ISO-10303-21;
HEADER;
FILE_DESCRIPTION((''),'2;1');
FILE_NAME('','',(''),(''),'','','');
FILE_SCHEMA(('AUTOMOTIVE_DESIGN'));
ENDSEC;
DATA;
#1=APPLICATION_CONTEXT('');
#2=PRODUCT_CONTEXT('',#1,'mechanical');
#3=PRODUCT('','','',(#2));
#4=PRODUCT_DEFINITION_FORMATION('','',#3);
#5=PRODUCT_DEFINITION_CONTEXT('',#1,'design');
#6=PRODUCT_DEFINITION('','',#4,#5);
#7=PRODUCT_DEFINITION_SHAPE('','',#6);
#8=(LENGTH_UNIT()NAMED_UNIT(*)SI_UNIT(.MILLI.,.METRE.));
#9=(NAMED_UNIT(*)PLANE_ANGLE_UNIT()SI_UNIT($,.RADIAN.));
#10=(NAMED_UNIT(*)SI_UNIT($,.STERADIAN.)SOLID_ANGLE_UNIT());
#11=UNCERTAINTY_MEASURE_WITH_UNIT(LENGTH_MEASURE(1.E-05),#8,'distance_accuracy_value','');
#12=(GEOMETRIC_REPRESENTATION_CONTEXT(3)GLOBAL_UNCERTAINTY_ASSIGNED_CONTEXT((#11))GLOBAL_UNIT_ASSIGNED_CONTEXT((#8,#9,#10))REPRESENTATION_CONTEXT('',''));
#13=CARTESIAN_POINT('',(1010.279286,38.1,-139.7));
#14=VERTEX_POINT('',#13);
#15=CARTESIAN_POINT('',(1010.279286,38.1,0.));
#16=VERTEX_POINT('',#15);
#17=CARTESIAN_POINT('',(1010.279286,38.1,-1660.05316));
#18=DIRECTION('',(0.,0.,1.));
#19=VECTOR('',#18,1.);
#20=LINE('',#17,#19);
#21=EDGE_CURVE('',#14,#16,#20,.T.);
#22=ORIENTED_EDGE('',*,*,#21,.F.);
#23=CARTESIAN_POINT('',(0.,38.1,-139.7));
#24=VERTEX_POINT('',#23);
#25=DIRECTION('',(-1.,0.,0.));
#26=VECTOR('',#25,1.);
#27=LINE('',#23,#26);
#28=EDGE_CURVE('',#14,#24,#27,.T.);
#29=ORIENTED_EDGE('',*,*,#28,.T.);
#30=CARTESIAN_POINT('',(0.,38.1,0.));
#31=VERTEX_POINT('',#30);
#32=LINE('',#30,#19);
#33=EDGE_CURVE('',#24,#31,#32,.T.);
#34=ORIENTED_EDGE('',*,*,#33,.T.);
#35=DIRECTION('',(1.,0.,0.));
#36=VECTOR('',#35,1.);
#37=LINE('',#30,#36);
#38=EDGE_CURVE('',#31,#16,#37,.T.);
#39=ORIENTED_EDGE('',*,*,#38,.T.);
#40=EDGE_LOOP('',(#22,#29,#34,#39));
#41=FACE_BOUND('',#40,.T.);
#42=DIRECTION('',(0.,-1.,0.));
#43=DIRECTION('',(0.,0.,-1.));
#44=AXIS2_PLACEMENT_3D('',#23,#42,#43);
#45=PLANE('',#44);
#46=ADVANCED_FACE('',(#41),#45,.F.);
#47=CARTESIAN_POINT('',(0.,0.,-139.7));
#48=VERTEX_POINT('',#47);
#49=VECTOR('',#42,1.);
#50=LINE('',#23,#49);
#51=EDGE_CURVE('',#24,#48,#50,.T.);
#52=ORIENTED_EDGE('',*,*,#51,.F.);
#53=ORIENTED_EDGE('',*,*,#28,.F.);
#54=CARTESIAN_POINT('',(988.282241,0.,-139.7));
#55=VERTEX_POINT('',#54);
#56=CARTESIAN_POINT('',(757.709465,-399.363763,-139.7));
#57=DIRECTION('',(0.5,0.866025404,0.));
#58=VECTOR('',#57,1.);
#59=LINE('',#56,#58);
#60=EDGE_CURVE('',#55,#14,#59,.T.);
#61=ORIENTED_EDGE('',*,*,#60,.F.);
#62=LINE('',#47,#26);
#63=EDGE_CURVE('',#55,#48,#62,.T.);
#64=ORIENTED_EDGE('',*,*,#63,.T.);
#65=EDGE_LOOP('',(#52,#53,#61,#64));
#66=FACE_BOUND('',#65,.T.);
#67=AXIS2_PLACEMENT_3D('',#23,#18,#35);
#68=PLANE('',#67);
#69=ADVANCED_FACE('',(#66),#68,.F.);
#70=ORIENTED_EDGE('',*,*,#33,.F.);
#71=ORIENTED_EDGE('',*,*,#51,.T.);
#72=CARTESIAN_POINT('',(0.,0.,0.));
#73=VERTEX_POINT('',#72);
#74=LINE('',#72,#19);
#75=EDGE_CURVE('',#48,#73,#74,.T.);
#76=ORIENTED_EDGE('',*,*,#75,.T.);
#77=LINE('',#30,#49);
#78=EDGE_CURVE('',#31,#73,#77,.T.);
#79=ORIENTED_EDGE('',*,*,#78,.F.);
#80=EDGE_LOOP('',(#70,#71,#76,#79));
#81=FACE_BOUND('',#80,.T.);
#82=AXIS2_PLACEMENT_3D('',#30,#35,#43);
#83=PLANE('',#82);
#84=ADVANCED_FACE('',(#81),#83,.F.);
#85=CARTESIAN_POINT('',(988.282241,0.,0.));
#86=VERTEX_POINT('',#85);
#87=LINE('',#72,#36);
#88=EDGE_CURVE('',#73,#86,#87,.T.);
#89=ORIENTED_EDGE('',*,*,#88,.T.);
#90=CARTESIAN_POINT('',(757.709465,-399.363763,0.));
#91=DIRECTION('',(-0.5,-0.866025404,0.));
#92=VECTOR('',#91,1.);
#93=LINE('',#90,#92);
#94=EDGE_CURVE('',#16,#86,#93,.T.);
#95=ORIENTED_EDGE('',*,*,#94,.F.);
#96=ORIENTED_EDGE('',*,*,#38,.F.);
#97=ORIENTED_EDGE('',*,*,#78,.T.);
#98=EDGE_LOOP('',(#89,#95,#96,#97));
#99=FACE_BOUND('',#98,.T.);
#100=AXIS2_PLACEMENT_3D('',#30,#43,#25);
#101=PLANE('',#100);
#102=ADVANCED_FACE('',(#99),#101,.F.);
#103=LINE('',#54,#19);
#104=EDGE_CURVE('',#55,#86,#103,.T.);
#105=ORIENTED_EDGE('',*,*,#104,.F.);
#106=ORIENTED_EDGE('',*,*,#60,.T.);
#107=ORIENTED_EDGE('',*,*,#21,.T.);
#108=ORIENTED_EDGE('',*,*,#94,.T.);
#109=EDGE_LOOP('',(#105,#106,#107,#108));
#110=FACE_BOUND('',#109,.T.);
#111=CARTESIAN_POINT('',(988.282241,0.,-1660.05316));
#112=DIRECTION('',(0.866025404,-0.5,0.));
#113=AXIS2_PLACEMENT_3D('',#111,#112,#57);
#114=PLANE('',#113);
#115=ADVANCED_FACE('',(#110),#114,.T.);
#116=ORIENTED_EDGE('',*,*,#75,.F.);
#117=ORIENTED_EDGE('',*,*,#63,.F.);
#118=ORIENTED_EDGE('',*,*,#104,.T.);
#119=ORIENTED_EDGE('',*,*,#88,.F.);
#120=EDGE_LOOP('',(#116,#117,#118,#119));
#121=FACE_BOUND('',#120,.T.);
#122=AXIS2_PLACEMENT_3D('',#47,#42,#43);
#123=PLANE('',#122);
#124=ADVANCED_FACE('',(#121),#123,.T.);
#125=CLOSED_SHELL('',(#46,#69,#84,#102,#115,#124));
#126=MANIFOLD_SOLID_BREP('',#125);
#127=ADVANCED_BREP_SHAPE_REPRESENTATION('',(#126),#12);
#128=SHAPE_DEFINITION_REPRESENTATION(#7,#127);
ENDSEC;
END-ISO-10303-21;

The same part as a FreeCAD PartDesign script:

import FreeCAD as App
import Part
import Sketcher
Q = App.Units.Quantity


def add_polygon(sketch, points):
    """Adds a closed chain of lines whose ends are joined by coincident constraints."""
    first, n = sketch.GeometryCount, len(points)
    for a, b in zip(points, points[1:] + points[:1]):
        sketch.addGeometry(Part.LineSegment(App.Vector(*a, 0), App.Vector(*b, 0)), False)
    for i in range(n):
        sketch.addConstraint(Sketcher.Constraint("Coincident", first + i, 2, first + (i + 1) % n, 1))

doc = App.newDocument("Part")
body = doc.addObject("PartDesign::Body", "Body")

sketch1 = body.newObject("Sketcher::SketchObject", "Sketch")
sketch1.AttachmentSupport = (doc.getObject("XZ_Plane"), [""])
sketch1.MapMode = "FlatFace"
add_polygon(sketch1, [(0, -140), (0, 0), (1067, 0), (1067, -140)])
sketch1.addConstraint([
    Sketcher.Constraint("Vertical", 0),
    Sketcher.Constraint("Horizontal", 1),
    Sketcher.Constraint("Vertical", 2),
    Sketcher.Constraint("Horizontal", 3),
    Sketcher.Constraint("Coincident", 0, 2, -1, 1),
    Sketcher.Constraint("DistanceX", 1, 1, 1, 2, Q("42 in")),
    Sketcher.Constraint("DistanceY", 0, 1, 0, 2, Q("5.5 in")),
])
pad1 = body.newObject("PartDesign::Pad", "Pad")
pad1.Profile = sketch1
pad1.Length = Q("1.5 in")
pad1.Reversed = True

sketch2 = body.newObject("Sketcher::SketchObject", "Sketch001")
sketch2.AttachmentSupport = (doc.getObject("XY_Plane"), [""])
sketch2.MapMode = "FlatFace"
sketch2.AttachmentOffset = App.Placement(App.Vector(0, 0, -5.5 * 25.4), App.Rotation())
add_polygon(sketch2, [(-28, -1760), (988, 0), (1010, 38), (2026, 1798), (5546, -234), (3492, -3792)])
sketch2.addConstraint([
    Sketcher.Constraint("PointOnObject", 0, 2, -1),
    Sketcher.Constraint("Parallel", 0, 1),
    Sketcher.Constraint("Parallel", 1, 2),
    Sketcher.Constraint("Perpendicular", 2, 3),
    Sketcher.Constraint("Perpendicular", 3, 4),
    Sketcher.Constraint("Perpendicular", 4, 5),
    Sketcher.Constraint("Equal", 0, 2),
    Sketcher.Constraint("Angle", 0, Q("60 deg")),
    Sketcher.Constraint("DistanceY", -1, 1, 1, 2, Q("1.5 in")),
    Sketcher.Constraint("DistanceX", -1, 1, 4, 2, 3491.803201),
    Sketcher.Constraint("DistanceX", -1, 1, 0, 2, 988.282241),
    Sketcher.Constraint("DistanceX", -1, 1, 3, 2, 5545.795149),
])
pocket1 = body.newObject("PartDesign::Pocket", "Pocket")
pocket1.Profile = sketch2
pocket1.Type = "ThroughAll"
pocket1.Midplane = True

doc.recompute()
